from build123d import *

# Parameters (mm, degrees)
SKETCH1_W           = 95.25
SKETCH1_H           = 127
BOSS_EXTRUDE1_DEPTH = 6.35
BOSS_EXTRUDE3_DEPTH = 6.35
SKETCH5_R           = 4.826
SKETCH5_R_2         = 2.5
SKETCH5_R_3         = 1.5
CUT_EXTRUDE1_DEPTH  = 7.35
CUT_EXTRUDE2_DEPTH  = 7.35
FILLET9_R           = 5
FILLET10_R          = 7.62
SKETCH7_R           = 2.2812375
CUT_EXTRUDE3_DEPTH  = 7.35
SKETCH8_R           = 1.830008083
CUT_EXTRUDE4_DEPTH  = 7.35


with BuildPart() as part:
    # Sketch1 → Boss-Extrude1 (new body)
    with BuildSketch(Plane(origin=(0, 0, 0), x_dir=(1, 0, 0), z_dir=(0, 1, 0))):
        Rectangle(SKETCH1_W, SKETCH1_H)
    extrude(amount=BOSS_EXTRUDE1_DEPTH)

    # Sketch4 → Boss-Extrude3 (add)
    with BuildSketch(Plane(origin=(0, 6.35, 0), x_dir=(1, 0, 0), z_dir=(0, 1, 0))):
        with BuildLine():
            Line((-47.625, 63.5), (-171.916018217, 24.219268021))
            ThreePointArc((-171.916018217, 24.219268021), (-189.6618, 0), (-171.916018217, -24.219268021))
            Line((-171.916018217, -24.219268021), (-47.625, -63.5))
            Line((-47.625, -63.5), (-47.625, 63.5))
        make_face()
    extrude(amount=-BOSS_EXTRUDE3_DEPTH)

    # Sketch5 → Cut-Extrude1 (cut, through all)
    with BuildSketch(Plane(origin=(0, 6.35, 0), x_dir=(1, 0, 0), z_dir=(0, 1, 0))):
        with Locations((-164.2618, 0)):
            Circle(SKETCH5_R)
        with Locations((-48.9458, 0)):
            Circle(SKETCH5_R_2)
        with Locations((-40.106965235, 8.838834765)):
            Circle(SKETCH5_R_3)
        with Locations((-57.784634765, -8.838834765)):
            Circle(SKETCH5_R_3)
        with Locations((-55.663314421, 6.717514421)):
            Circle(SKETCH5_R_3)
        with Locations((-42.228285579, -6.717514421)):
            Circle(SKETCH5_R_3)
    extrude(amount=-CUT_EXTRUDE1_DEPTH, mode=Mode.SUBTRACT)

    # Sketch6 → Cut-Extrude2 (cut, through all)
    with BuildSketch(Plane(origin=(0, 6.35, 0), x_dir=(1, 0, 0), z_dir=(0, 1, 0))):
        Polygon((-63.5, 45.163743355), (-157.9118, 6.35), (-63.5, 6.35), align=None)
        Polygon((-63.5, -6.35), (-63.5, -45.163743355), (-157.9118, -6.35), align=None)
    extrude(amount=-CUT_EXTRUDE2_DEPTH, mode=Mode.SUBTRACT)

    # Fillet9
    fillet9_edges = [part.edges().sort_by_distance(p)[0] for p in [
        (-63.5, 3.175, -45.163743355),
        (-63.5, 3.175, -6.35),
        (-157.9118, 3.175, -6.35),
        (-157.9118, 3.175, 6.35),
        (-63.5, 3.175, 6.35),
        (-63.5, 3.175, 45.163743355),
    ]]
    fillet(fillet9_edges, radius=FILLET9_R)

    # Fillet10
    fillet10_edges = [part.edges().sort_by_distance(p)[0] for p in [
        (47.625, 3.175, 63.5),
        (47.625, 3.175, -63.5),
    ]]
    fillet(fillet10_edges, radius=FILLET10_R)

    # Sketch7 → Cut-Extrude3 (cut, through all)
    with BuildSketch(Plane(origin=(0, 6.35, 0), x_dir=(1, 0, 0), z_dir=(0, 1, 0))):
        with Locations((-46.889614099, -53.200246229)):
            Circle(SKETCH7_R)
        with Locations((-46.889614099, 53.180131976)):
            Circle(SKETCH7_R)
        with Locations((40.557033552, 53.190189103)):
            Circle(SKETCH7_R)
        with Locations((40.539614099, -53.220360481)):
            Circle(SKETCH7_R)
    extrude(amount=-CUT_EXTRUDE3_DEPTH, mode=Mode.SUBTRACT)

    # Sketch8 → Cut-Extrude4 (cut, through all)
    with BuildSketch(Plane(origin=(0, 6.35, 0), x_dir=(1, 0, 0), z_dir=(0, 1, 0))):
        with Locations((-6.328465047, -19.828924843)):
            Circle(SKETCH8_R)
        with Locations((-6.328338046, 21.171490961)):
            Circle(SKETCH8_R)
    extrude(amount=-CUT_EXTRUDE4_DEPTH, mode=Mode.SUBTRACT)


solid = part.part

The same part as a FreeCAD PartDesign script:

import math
import FreeCAD as App
import Part
import Sketcher

V = App.Vector
Q = App.Units.Quantity


def edges_at(feature, points):
    """Names of the edges that pass closest to the given points."""
    edges = feature.Shape.Edges
    near = lambda p: min(range(len(edges)), key=lambda i: edges[i].distToShape(Part.Vertex(*p))[0])
    return sorted({f"Edge{near(p) + 1}" for p in points})


def add_polygon(sketch, points):
    """Adds a closed chain of lines whose ends are joined by coincident constraints."""
    first, n = sketch.GeometryCount, len(points)
    for a, b in zip(points, points[1:] + points[:1]):
        sketch.addGeometry(Part.LineSegment(App.Vector(*a, 0), App.Vector(*b, 0)), False)
    for i in range(n):
        sketch.addConstraint(Sketcher.Constraint("Coincident", first + i, 2, first + (i + 1) % n, 1))

doc = App.newDocument("Part")
body = doc.addObject("PartDesign::Body", "Body")

# Sketch on XZ plane
sketch1 = body.newObject("Sketcher::SketchObject", "Sketch")
sketch1.AttachmentSupport = (doc.getObject("XZ_Plane"), [""])
sketch1.MapMode = "FlatFace"
add_polygon(sketch1, [(-47.625, -63.5), (-47.625, 63.5), (47.625, 63.5), (47.625, -63.5)])  # lines 0-3
sketch1.addConstraint(Sketcher.Constraint("Vertical", 0))
sketch1.addConstraint(Sketcher.Constraint("Horizontal", 1))
sketch1.addConstraint(Sketcher.Constraint("Vertical", 2))
sketch1.addConstraint(Sketcher.Constraint("Horizontal", 3))
sketch1.addConstraint(Sketcher.Constraint("Symmetric", 0, 2, 2, 2, -1, 1))
sketch1.addConstraint(Sketcher.Constraint("DistanceY", 0, 1, 0, 2, Q("5 in")))
sketch1.addConstraint(Sketcher.Constraint("DistanceX", 1, 1, 1, 2, Q("3.75 in")))
pad1 = body.newObject("PartDesign::Pad", "Pad")
pad1.Profile = sketch1
pad1.Length = Q("0.25 in")
pad1.Reversed = True

# Sketch on XZ plane
sketch2 = body.newObject("Sketcher::SketchObject", "Sketch001")
sketch2.AttachmentSupport = (doc.getObject("XZ_Plane"), [""])
sketch2.MapMode = "FlatFace"
sketch2.AttachmentOffset = App.Placement(V(0, 0, -0.25 * 25.4), App.Rotation())
sketch2.addGeometry(Part.LineSegment(V(-47.625, -63.5, 0), V(-171.916018, -24.219268, 0)), False)
sketch2.addGeometry(Part.ArcOfCircle(Part.Circle(V(-164.2618, 0, 0), V(0, 0, 1), 25.4), math.radians(107.538535), math.radians(252.461465)), False)
sketch2.addGeometry(Part.LineSegment(V(-171.916018, 24.219268, 0), V(-47.625, 63.5, 0)), False)
sketch2.addGeometry(Part.LineSegment(V(-47.625, 63.5, 0), V(-47.625, -63.5, 0)), False)
sketch2.addConstraint(Sketcher.Constraint("Tangent", 0, 2, 1, 2))
sketch2.addConstraint(Sketcher.Constraint("Tangent", 1, 1, 2, 1))
sketch2.addConstraint(Sketcher.Constraint("Coincident", 2, 2, 3, 1))
sketch2.addConstraint(Sketcher.Constraint("Coincident", 3, 2, 0, 1))
sketch2.addConstraint(Sketcher.Constraint("Vertical", 3))
sketch2.addConstraint(Sketcher.Constraint("Symmetric", 0, 2, 1, 1, -1))
sketch2.addConstraint(Sketcher.Constraint("Radius", 1, Q("1 in")))
sketch2.addConstraint(Sketcher.Constraint("DistanceY", 3, 2, 3, 1, Q("5 in")))
sketch2.addConstraint(Sketcher.Constraint("DistanceX", 1, 3, -1, 1, Q("6.467 in")))
sketch2.addConstraint(Sketcher.Constraint("DistanceX", 2, 2, -1, 1, Q("1.875 in")))
pad2 = body.newObject("PartDesign::Pad", "Pad001")
pad2.Profile = sketch2
pad2.Length = Q("0.25 in")

# Sketch on XZ plane
sketch3 = body.newObject("Sketcher::SketchObject", "Sketch002")
sketch3.AttachmentSupport = (doc.getObject("XZ_Plane"), [""])
sketch3.MapMode = "FlatFace"
sketch3.AttachmentOffset = App.Placement(V(0, 0, -0.25 * 25.4), App.Rotation())
sketch3.addGeometry(Part.Circle(V(-164.2618, 0, 0), V(0, 0, 1), 4.826), False)
sketch3.addGeometry(Part.Circle(V(-48.9458, 0, 0), V(0, 0, 1), 2.5), False)
sketch3.addGeometry(Part.Circle(V(-40.106965, -8.838835, 0), V(0, 0, 1), 1.5), False)
sketch3.addGeometry(Part.Circle(V(-57.784635, 8.838835, 0), V(0, 0, 1), 1.5), False)
sketch3.addGeometry(Part.Circle(V(-55.663314, -6.717514, 0), V(0, 0, 1), 1.5), False)
sketch3.addGeometry(Part.Circle(V(-42.228286, 6.717514, 0), V(0, 0, 1), 1.5), False)
sketch3.addConstraint(Sketcher.Constraint("Equal", 2, 3))
sketch3.addConstraint(Sketcher.Constraint("Equal", 3, 4))
sketch3.addConstraint(Sketcher.Constraint("Equal", 4, 5))
sketch3.addConstraint(Sketcher.Constraint("PointOnObject", 0, 3, -1))
sketch3.addConstraint(Sketcher.Constraint("PointOnObject", 1, 3, -1))
sketch3.addConstraint(Sketcher.Constraint("Diameter", 0, Q("0.38 in")))
sketch3.addConstraint(Sketcher.Constraint("Diameter", 1, 5.0))
sketch3.addConstraint(Sketcher.Constraint("Diameter", 2, 3.0))
sketch3.addConstraint(Sketcher.Constraint("DistanceX", 0, 3, 1, 3, Q("4.54 in")))
sketch3.addConstraint(Sketcher.Constraint("DistanceX", 0, 3, -1, 1, Q("6.467 in")))
sketch3.addConstraint(Sketcher.Constraint("DistanceX", 3, 3, 2, 3, 17.67767))
sketch3.addConstraint(Sketcher.Constraint("DistanceY", 2, 3, 3, 3, 17.67767))
sketch3.addConstraint(Sketcher.Constraint("DistanceX", 3, 3, 4, 3, 2.12132))
sketch3.addConstraint(Sketcher.Constraint("DistanceY", 4, 3, 3, 3, 15.556349))
sketch3.addConstraint(Sketcher.Constraint("DistanceX", 5, 3, 2, 3, 2.12132))
sketch3.addConstraint(Sketcher.Constraint("DistanceY", 2, 3, 5, 3, 15.556349))
sketch3.addConstraint(Sketcher.Constraint("DistanceX", 2, 3, -1, 1, 40.106965))
sketch3.addConstraint(Sketcher.Constraint("DistanceY", 2, 3, -1, 1, 8.838835))
pocket1 = body.newObject("PartDesign::Pocket", "Pocket")
pocket1.Profile = sketch3
pocket1.Type = "ThroughAll"
pocket1.Reversed = True

# Sketch on XZ plane
sketch4 = body.newObject("Sketcher::SketchObject", "Sketch003")
sketch4.AttachmentSupport = (doc.getObject("XZ_Plane"), [""])
sketch4.MapMode = "FlatFace"
sketch4.AttachmentOffset = App.Placement(V(0, 0, -0.25 * 25.4), App.Rotation())
add_polygon(sketch4, [(-63.5, -45.163743), (-157.9118, -6.35), (-63.5, -6.35)])  # lines 0-2
add_polygon(sketch4, [(-63.5, 45.163743), (-63.5, 6.35), (-157.9118, 6.35)])  # lines 3-5
sketch4.addConstraint(Sketcher.Constraint("Horizontal", 1))
sketch4.addConstraint(Sketcher.Constraint("Vertical", 2))
sketch4.addConstraint(Sketcher.Constraint("Vertical", 3))
sketch4.addConstraint(Sketcher.Constraint("Horizontal", 4))
sketch4.addConstraint(Sketcher.Constraint("Symmetric", 1, 2, 3, 2, -1))
sketch4.addConstraint(Sketcher.Constraint("Vertical", 0, 2, 4, 2))
sketch4.addConstraint(Sketcher.Constraint("Equal", 2, 3))
sketch4.addConstraint(Sketcher.Constraint("DistanceX", 1, 2, -1, 1, Q("2.5 in")))
sketch4.addConstraint(Sketcher.Constraint("DistanceY", 1, 2, 3, 2, Q("0.5 in")))
sketch4.addConstraint(Sketcher.Constraint("DistanceX", 1, 1, 1, 2, Q("3.717 in")))
sketch4.addConstraint(Sketcher.Constraint("DistanceY", 2, 2, 2, 1, Q("1.5281001 in")))
pocket2 = body.newObject("PartDesign::Pocket", "Pocket001")
pocket2.Profile = sketch4
pocket2.Type = "ThroughAll"
pocket2.Reversed = True
doc.recompute()

fillet = body.newObject("PartDesign::Fillet", "Fillet")
fillet.Base = (pocket2, edges_at(pocket2, [
    (-63.5, 3.175, -45.164),
    (-63.5, 3.175, -6.35),
    (-157.912, 3.175, -6.35),
    (-157.912, 3.175, 6.35),
    (-63.5, 3.175, 6.35),
    (-63.5, 3.175, 45.164),
]))
fillet.Radius = 5
doc.recompute()

fillet2 = body.newObject("PartDesign::Fillet", "Fillet001")
fillet2.Base = (fillet, edges_at(fillet, [(47.625, 3.175, 63.5), (47.625, 3.175, -63.5)]))
fillet2.Radius = Q("0.3 in")

# Sketch on XZ plane
sketch5 = body.newObject("Sketcher::SketchObject", "Sketch004")
sketch5.AttachmentSupport = (doc.getObject("XZ_Plane"), [""])
sketch5.MapMode = "FlatFace"
sketch5.AttachmentOffset = App.Placement(V(0, 0, -0.25 * 25.4), App.Rotation())
sketch5.addGeometry(Part.Circle(V(-46.889614, 53.200246, 0), V(0, 0, 1), 2.281238), False)
sketch5.addGeometry(Part.Circle(V(-46.889614, -53.180132, 0), V(0, 0, 1), 2.281238), False)
sketch5.addGeometry(Part.Circle(V(40.557034, -53.190189, 0), V(0, 0, 1), 2.281238), False)
sketch5.addGeometry(Part.Circle(V(40.539614, 53.22036, 0), V(0, 0, 1), 2.281238), False)
sketch5.addConstraint(Sketcher.Constraint("Equal", 0, 1))
sketch5.addConstraint(Sketcher.Constraint("Equal", 1, 2))
sketch5.addConstraint(Sketcher.Constraint("Equal", 2, 3))
sketch5.addConstraint(Sketcher.Constraint("Vertical", 0, 3, 1, 3))
sketch5.addConstraint(Sketcher.Constraint("Diameter", 0, 4.562475))
sketch5.addConstraint(Sketcher.Constraint("DistanceY", 2, 3, 0, 3, Q("4.1885998 in")))
sketch5.addConstraint(Sketcher.Constraint("DistanceY", 1, 3, -1, 1, 53.180132))
sketch5.addConstraint(Sketcher.Constraint("DistanceY", 2, 3, -1, 1, 53.190189))
sketch5.addConstraint(Sketcher.Constraint("DistanceY", -1, 1, 3, 3, 53.22036))
sketch5.addConstraint(Sketcher.Constraint("DistanceX", 0, 3, 3, 3, 87.429228))
sketch5.addConstraint(Sketcher.Constraint("DistanceX", 3, 3, 2, 3, 0.017419))
sketch5.addConstraint(Sketcher.Constraint("DistanceX", 0, 3, -1, 1, 46.889614))
pocket3 = body.newObject("PartDesign::Pocket", "Pocket002")
pocket3.Profile = sketch5
pocket3.Type = "ThroughAll"
pocket3.Reversed = True

# Sketch on XZ plane
sketch6 = body.newObject("Sketcher::SketchObject", "Sketch005")
sketch6.AttachmentSupport = (doc.getObject("XZ_Plane"), [""])
sketch6.MapMode = "FlatFace"
sketch6.AttachmentOffset = App.Placement(V(0, 0, -0.25 * 25.4), App.Rotation())
sketch6.addGeometry(Part.Circle(V(-6.328465, 19.828925, 0), V(0, 0, 1), 1.830008), False)
sketch6.addGeometry(Part.Circle(V(-6.328338, -21.171491, 0), V(0, 0, 1), 1.830008), False)
sketch6.addConstraint(Sketcher.Constraint("Equal", 0, 1))
sketch6.addConstraint(Sketcher.Constraint("Diameter", 0, 3.660016))
sketch6.addConstraint(Sketcher.Constraint("DistanceX", 1, 3, -1, 1, 6.328338))
sketch6.addConstraint(Sketcher.Constraint("DistanceY", 1, 3, -1, 1, 21.171491))
sketch6.addConstraint(Sketcher.Constraint("DistanceX", 0, 3, -1, 1, 6.328465))
sketch6.addConstraint(Sketcher.Constraint("DistanceY", -1, 1, 0, 3, 19.828925))
pocket4 = body.newObject("PartDesign::Pocket", "Pocket003")
pocket4.Profile = sketch6
pocket4.Type = "ThroughAll"
pocket4.Reversed = True

doc.recompute()
